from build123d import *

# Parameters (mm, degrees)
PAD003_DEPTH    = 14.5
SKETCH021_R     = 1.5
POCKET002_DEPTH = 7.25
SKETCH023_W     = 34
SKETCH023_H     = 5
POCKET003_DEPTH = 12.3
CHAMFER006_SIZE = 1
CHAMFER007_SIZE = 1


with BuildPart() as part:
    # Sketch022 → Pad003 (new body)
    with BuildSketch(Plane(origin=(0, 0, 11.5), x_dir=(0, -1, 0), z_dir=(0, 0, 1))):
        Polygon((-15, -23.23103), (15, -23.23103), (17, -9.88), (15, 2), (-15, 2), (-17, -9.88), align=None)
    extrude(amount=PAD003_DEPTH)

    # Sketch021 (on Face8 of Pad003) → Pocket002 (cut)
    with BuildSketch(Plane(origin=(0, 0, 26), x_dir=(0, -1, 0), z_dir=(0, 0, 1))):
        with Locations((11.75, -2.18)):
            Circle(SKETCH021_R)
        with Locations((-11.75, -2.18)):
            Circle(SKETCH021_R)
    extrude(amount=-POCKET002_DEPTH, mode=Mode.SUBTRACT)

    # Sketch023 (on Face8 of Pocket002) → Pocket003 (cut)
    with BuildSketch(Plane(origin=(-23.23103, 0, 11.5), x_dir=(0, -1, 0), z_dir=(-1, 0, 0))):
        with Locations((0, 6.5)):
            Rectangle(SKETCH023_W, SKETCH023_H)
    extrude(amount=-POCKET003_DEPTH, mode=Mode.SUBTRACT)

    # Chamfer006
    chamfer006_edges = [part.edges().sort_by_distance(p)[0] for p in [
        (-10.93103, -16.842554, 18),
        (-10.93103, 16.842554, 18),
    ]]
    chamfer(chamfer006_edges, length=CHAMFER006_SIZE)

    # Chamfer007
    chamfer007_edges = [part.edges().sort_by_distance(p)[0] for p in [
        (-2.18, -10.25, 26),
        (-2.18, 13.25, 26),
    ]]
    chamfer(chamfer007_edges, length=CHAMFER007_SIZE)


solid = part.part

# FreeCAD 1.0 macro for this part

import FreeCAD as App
import Part
import Sketcher
Q = App.Units.Quantity


def edges_at(feature, points):
    """Names of the edges that pass closest to the given points."""
    edges = feature.Shape.Edges
    near = lambda p: min(range(len(edges)), key=lambda i: edges[i].distToShape(Part.Vertex(*p))[0])
    return sorted({f"Edge{near(p) + 1}" for p in points})

doc = App.newDocument("Part")
body = doc.addObject("PartDesign::Body", "Body")

sketch1 = body.newObject("Sketcher::SketchObject", "Sketch")
sketch1.AttachmentSupport = (doc.getObject("XY_Plane"), [""])
sketch1.MapMode = "FlatFace"
sketch1.AttachmentOffset = App.Placement(App.Vector(0, 0, 11.5), App.Rotation())
sketch1.addGeometry([
    Part.LineSegment(App.Vector(-23.23103, 15, 0), App.Vector(-23.23103, -15, 0)),
    Part.LineSegment(App.Vector(-23.23103, -15, 0), App.Vector(-9.88, -17, 0)),
    Part.LineSegment(App.Vector(-9.88, -17, 0), App.Vector(2, -15, 0)),
    Part.LineSegment(App.Vector(2, -15, 0), App.Vector(2, 15, 0)),
    Part.LineSegment(App.Vector(2, 15, 0), App.Vector(-9.88, 17, 0)),
    Part.LineSegment(App.Vector(-9.88, 17, 0), App.Vector(-23.23103, 15, 0)),
], False)
sketch1.addConstraint([
    Sketcher.Constraint("Coincident", 0, 2, 1, 1),
    Sketcher.Constraint("Coincident", 1, 2, 2, 1),
    Sketcher.Constraint("Coincident", 2, 2, 3, 1),
    Sketcher.Constraint("Coincident", 3, 2, 4, 1),
    Sketcher.Constraint("Coincident", 4, 2, 5, 1),
    Sketcher.Constraint("Coincident", 5, 2, 0, 1),
    Sketcher.Constraint("Vertical", 0),
    Sketcher.Constraint("Vertical", 3),
    Sketcher.Constraint("Symmetric", 1, 2, 4, 2, -1),
    Sketcher.Constraint("Horizontal", 0, 2, 2, 2),
    Sketcher.Constraint("Horizontal", 3, 2, 5, 2),
    Sketcher.Constraint("Equal", 2, 4),
    Sketcher.Constraint("DistanceY", 0, 2, 0, 1, Q("30 mm")),
    Sketcher.Constraint("DistanceY", 1, 2, -1, 1, Q("17 mm")),
    Sketcher.Constraint("DistanceX", -1, 1, 2, 2, Q("2 mm")),
    Sketcher.Constraint("Distance", 1, Q("13.5 mm")),
    Sketcher.Constraint("DistanceX", 1, 2, -1, 1, Q("9.88 mm")),
])
pad1 = body.newObject("PartDesign::Pad", "Pad")
pad1.Profile = sketch1
pad1.Length = 14.5

sketch2 = body.newObject("Sketcher::SketchObject", "Sketch001")
sketch2.AttachmentSupport = (doc.getObject("XY_Plane"), [""])
sketch2.MapMode = "FlatFace"
sketch2.AttachmentOffset = App.Placement(App.Vector(0, 0, 26), App.Rotation())
sketch2.addGeometry([
    Part.Circle(App.Vector(-2.18, -11.75, 0), App.Vector(0, 0, 1), 1.5),
    Part.Circle(App.Vector(-2.18, 11.75, 0), App.Vector(0, 0, 1), 1.5),
], False)
sketch2.addConstraint([
    Sketcher.Constraint("Equal", 0, 1),
    Sketcher.Constraint("Symmetric", 0, 3, 1, 3, -1),
    Sketcher.Constraint("Diameter", 0, Q("3 mm")),
    Sketcher.Constraint("DistanceY", 0, 3, 1, 3, Q("23.5 mm")),
    Sketcher.Constraint("DistanceX", 0, 3, -1, 1, Q("2.18 mm")),
])
pocket1 = body.newObject("PartDesign::Pocket", "Pocket")
pocket1.Profile = sketch2
pocket1.Length = 7.25

sketch3 = body.newObject("Sketcher::SketchObject", "Sketch002")
sketch3.AttachmentSupport = (doc.getObject("YZ_Plane"), [""])
sketch3.MapMode = "FlatFace"
sketch3.AttachmentOffset = App.Placement(App.Vector(0, 0, -23.23103), App.Rotation())
sketch3.addGeometry([
    Part.LineSegment(App.Vector(17, 20.5, 0), App.Vector(17, 15.5, 0)),
    Part.LineSegment(App.Vector(17, 15.5, 0), App.Vector(-17, 15.5, 0)),
    Part.LineSegment(App.Vector(-17, 15.5, 0), App.Vector(-17, 20.5, 0)),
    Part.LineSegment(App.Vector(-17, 20.5, 0), App.Vector(17, 20.5, 0)),
], False)
sketch3.addConstraint([
    Sketcher.Constraint("Coincident", 0, 2, 1, 1),
    Sketcher.Constraint("Coincident", 1, 2, 2, 1),
    Sketcher.Constraint("Coincident", 2, 2, 3, 1),
    Sketcher.Constraint("Coincident", 3, 2, 0, 1),
    Sketcher.Constraint("Vertical", 0),
    Sketcher.Constraint("Horizontal", 1),
    Sketcher.Constraint("Vertical", 2),
    Sketcher.Constraint("Horizontal", 3),
    Sketcher.Constraint("DistanceX", 1, 2, 1, 1, Q("34 mm")),
    Sketcher.Constraint("DistanceY", 0, 2, 0, 1, Q("5 mm")),
    Sketcher.Constraint("DistanceX", -1, 1, 0, 2, Q("17 mm")),
    Sketcher.Constraint("DistanceY", -1, 1, 0, 2, Q("15.5 mm")),
])
pocket2 = body.newObject("PartDesign::Pocket", "Pocket001")
pocket2.Profile = sketch3
pocket2.Length = 12.3
pocket2.Reversed = True
doc.recompute()

chamfer = body.newObject("PartDesign::Chamfer", "Chamfer")
chamfer.Base = (pocket2, edges_at(pocket2, [(-10.931, -16.843, 18), (-10.931, 16.843, 18)]))
chamfer.Size = 1
doc.recompute()

chamfer2 = body.newObject("PartDesign::Chamfer", "Chamfer001")
chamfer2.Base = (chamfer, edges_at(chamfer, [(-2.18, -10.25, 26), (-2.18, 13.25, 26)]))
chamfer2.Size = 1

doc.recompute()
